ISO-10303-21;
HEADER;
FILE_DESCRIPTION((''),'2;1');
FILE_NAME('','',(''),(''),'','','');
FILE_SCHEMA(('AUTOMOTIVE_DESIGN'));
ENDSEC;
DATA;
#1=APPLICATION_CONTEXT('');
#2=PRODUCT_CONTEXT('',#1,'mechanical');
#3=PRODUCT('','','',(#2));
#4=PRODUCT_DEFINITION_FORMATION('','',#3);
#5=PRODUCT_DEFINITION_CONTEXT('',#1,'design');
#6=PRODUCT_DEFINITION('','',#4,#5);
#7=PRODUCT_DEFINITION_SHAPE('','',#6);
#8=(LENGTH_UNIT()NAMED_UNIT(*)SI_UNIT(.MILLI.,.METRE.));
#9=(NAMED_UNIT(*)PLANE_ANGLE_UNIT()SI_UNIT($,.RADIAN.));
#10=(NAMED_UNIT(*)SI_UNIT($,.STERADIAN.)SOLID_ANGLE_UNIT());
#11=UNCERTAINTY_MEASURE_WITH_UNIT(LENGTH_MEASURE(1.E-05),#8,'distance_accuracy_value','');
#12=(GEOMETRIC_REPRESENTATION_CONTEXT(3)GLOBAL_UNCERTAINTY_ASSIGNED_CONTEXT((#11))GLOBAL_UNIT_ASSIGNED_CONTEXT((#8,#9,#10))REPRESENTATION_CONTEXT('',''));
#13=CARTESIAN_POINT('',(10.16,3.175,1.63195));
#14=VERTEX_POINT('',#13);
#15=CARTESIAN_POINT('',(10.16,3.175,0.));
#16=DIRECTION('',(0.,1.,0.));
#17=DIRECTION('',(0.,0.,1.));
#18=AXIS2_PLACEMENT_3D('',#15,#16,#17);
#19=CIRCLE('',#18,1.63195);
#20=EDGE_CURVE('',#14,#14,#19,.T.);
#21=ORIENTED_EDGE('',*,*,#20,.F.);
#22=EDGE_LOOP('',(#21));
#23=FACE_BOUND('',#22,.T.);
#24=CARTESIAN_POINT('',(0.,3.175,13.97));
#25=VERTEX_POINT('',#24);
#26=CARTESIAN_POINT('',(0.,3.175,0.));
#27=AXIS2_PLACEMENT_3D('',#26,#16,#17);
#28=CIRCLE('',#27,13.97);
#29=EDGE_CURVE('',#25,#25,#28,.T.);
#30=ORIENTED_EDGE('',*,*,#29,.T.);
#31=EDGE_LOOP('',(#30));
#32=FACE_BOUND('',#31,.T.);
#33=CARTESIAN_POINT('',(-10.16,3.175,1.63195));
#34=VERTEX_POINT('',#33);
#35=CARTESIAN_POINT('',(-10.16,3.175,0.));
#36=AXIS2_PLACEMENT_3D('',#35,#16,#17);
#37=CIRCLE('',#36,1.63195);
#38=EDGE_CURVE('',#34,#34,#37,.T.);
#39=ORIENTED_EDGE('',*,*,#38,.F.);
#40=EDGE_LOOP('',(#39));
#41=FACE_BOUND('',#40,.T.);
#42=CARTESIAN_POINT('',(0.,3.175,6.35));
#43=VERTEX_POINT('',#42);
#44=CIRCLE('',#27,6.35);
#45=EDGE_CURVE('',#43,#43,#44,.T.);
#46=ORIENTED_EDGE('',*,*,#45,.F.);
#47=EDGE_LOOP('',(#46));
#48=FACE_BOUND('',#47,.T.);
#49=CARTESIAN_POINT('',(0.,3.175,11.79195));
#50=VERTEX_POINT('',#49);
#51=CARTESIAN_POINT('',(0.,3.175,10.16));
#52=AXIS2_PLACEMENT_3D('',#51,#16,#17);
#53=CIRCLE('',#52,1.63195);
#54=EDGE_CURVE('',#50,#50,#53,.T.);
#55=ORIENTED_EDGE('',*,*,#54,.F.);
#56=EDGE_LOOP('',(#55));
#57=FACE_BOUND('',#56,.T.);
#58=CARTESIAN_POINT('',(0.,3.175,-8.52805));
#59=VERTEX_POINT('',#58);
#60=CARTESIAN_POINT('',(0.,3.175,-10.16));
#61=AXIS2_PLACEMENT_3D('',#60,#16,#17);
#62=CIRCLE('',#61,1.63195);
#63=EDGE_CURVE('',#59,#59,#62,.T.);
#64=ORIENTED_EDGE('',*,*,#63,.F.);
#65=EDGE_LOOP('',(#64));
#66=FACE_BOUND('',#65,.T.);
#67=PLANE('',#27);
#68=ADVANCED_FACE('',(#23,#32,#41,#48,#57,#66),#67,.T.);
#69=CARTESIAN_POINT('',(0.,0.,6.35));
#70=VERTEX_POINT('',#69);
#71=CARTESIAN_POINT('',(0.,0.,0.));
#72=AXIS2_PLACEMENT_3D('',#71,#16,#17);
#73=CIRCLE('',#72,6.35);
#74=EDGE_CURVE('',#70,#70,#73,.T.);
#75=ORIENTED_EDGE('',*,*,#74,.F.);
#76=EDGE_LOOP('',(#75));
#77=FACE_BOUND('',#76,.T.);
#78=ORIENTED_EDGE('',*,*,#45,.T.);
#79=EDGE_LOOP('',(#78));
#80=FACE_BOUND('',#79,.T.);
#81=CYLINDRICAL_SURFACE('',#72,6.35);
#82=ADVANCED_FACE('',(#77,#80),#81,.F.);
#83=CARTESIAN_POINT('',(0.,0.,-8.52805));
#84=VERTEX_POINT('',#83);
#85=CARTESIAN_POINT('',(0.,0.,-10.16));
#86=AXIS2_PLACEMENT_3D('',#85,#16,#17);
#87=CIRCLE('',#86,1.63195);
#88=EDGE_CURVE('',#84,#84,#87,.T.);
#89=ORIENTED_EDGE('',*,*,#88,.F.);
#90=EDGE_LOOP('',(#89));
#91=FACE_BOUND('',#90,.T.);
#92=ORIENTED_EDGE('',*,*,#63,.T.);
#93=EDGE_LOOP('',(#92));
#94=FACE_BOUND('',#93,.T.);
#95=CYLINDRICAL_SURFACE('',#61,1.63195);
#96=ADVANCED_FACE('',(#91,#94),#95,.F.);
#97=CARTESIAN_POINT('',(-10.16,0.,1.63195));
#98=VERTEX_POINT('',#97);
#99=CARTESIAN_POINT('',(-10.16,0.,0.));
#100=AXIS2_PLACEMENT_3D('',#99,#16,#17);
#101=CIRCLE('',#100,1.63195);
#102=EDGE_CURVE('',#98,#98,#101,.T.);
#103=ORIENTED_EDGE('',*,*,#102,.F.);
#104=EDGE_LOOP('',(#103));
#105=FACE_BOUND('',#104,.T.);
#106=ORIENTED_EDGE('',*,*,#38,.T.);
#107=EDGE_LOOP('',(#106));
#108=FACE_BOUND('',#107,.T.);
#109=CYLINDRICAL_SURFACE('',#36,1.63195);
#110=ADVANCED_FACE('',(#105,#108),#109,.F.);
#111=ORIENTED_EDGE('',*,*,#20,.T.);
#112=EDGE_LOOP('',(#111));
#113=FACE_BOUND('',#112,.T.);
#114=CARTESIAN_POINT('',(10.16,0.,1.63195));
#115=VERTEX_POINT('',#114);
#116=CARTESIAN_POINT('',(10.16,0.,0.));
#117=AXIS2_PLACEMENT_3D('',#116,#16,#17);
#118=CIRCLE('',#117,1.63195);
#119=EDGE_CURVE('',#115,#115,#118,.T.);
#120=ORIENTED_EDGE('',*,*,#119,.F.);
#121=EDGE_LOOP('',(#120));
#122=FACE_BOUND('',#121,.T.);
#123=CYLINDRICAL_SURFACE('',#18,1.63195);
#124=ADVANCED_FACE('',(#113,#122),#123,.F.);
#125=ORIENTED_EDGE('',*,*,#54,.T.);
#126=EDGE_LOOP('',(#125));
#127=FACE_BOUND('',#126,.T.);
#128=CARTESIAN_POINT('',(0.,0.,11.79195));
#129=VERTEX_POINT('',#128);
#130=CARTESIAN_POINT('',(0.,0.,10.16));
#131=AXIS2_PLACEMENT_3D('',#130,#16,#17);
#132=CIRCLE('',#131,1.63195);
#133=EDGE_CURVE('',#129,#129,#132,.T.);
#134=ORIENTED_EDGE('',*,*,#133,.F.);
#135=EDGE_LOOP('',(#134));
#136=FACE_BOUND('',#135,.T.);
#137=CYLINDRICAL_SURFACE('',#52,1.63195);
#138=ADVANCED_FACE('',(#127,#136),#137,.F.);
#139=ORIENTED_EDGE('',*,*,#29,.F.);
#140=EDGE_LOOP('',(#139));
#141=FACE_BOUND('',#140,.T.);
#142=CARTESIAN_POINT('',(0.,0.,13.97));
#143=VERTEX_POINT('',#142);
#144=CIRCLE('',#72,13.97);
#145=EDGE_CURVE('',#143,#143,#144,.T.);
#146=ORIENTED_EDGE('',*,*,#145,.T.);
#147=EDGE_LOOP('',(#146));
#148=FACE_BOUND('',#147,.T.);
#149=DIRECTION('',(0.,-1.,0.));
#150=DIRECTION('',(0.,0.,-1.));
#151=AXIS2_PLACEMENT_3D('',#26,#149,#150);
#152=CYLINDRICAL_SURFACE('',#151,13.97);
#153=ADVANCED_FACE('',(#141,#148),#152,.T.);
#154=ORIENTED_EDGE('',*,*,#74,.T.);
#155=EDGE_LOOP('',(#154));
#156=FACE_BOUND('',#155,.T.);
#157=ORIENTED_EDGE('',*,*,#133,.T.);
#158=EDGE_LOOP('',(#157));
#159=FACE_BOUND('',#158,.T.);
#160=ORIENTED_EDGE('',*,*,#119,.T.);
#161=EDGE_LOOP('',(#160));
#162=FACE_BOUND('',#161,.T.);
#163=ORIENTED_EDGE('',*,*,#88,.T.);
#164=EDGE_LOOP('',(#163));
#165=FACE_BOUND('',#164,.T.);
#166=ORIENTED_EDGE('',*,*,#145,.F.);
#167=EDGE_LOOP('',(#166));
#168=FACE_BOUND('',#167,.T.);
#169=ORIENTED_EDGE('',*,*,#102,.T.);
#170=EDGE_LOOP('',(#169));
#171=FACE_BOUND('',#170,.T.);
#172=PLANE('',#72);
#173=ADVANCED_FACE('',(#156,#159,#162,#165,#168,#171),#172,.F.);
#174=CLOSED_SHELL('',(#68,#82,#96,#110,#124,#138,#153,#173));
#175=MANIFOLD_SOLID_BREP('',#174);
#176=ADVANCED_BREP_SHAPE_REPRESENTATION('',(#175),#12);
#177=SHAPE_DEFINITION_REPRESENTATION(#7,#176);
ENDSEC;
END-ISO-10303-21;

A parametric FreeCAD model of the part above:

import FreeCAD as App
import Part
import Sketcher
from FreeCAD import Vector
Q = App.Units.Quantity

doc = App.newDocument("Part")
body = doc.addObject("PartDesign::Body", "Body")

# Sketch on XZ plane
sketch1 = body.newObject("Sketcher::SketchObject", "Sketch")
sketch1.AttachmentSupport = (doc.getObject("XZ_Plane"), [""])
sketch1.MapMode = "FlatFace"
sketch1.addGeometry(Part.Circle(Vector(0, 0, 0), Vector(0, 0, 1), 14), False)
sketch1.addConstraint([
    Sketcher.Constraint("Coincident", 0, 3, -1, 1),
    Sketcher.Constraint("Diameter", 0, Q("1.1 in")),
])
pad1 = body.newObject("PartDesign::Pad", "Pad")
pad1.Profile = sketch1
pad1.Length = Q("0.125 in")
pad1.Reversed = True

# Sketch on XZ plane
sketch2 = body.newObject("Sketcher::SketchObject", "Sketch001")
sketch2.AttachmentSupport = (doc.getObject("XZ_Plane"), [""])
sketch2.MapMode = "FlatFace"
sketch2.AttachmentOffset = App.Placement(Vector(0, 0, -0.125 * 25.4), App.Rotation())
sketch2.addGeometry(Part.Circle(Vector(0, 0, 0), Vector(0, 0, 1), 6), False)
sketch2.addConstraint([
    Sketcher.Constraint("Coincident", 0, 3, -1, 1),
    Sketcher.Constraint("Diameter", 0, Q("0.5 in")),
])
pocket1 = body.newObject("PartDesign::Pocket", "Pocket")
pocket1.Profile = sketch2
pocket1.Length = Q("0.125 in")
pocket1.Reversed = True

# Sketch on YZ plane
sketch3 = body.newObject("Sketcher::SketchObject", "Sketch002")
sketch3.AttachmentSupport = (doc.getObject("YZ_Plane"), [""])
sketch3.MapMode = "FlatFace"
sketch3.AttachmentOffset = App.Placement(Vector(0, 0, 0.4 * 25.4), App.Rotation())
sketch3.addGeometry([
    Part.LineSegment(Vector(-8, 0, 0), Vector(3.2, 0, 0)),
    Part.LineSegment(Vector(3.2, 0, 0), Vector(3.2, 1.6, 0)),
    Part.LineSegment(Vector(3.2, 1.6, 0), Vector(-7, 1.6, 0)),
    Part.LineSegment(Vector(-7, 1.6, 0), Vector(-8, 0, 0)),
], False)
sketch3.addConstraint([
    Sketcher.Constraint("Coincident", 0, 2, 1, 1),
    Sketcher.Constraint("Coincident", 1, 2, 2, 1),
    Sketcher.Constraint("Coincident", 2, 2, 3, 1),
    Sketcher.Constraint("Coincident", 3, 2, 0, 1),
    Sketcher.Constraint("Horizontal", 0),
    Sketcher.Constraint("Vertical", 1),
    Sketcher.Constraint("Horizontal", 2),
    Sketcher.Constraint("PointOnObject", 0, 2, -1),
    Sketcher.Constraint("DistanceX", 2, 2, 2, 1, Q("0.4 in")),
    Sketcher.Constraint("Angle", 3, Q("-121 deg")),
    Sketcher.Constraint("DistanceX", -1, 1, 0, 2, Q("0.125 in")),
    Sketcher.Constraint("DistanceY", 1, 1, 1, 2, 1.63195),
])
groove = body.newObject("PartDesign::Groove", "Groove")
groove.Profile = sketch3
groove.ReferenceAxis = (sketch3, ["H_Axis"])
groove.Angle = 360
doc.recompute()

polarpattern = body.newObject("PartDesign::PolarPattern", "PolarPattern")
polarpattern.Originals = [groove]
polarpattern.Axis = (doc.getObject("Y_Axis"), [""])
polarpattern.Angle = 360
polarpattern.Occurrences = 4
body.Tip = polarpattern

doc.recompute()
